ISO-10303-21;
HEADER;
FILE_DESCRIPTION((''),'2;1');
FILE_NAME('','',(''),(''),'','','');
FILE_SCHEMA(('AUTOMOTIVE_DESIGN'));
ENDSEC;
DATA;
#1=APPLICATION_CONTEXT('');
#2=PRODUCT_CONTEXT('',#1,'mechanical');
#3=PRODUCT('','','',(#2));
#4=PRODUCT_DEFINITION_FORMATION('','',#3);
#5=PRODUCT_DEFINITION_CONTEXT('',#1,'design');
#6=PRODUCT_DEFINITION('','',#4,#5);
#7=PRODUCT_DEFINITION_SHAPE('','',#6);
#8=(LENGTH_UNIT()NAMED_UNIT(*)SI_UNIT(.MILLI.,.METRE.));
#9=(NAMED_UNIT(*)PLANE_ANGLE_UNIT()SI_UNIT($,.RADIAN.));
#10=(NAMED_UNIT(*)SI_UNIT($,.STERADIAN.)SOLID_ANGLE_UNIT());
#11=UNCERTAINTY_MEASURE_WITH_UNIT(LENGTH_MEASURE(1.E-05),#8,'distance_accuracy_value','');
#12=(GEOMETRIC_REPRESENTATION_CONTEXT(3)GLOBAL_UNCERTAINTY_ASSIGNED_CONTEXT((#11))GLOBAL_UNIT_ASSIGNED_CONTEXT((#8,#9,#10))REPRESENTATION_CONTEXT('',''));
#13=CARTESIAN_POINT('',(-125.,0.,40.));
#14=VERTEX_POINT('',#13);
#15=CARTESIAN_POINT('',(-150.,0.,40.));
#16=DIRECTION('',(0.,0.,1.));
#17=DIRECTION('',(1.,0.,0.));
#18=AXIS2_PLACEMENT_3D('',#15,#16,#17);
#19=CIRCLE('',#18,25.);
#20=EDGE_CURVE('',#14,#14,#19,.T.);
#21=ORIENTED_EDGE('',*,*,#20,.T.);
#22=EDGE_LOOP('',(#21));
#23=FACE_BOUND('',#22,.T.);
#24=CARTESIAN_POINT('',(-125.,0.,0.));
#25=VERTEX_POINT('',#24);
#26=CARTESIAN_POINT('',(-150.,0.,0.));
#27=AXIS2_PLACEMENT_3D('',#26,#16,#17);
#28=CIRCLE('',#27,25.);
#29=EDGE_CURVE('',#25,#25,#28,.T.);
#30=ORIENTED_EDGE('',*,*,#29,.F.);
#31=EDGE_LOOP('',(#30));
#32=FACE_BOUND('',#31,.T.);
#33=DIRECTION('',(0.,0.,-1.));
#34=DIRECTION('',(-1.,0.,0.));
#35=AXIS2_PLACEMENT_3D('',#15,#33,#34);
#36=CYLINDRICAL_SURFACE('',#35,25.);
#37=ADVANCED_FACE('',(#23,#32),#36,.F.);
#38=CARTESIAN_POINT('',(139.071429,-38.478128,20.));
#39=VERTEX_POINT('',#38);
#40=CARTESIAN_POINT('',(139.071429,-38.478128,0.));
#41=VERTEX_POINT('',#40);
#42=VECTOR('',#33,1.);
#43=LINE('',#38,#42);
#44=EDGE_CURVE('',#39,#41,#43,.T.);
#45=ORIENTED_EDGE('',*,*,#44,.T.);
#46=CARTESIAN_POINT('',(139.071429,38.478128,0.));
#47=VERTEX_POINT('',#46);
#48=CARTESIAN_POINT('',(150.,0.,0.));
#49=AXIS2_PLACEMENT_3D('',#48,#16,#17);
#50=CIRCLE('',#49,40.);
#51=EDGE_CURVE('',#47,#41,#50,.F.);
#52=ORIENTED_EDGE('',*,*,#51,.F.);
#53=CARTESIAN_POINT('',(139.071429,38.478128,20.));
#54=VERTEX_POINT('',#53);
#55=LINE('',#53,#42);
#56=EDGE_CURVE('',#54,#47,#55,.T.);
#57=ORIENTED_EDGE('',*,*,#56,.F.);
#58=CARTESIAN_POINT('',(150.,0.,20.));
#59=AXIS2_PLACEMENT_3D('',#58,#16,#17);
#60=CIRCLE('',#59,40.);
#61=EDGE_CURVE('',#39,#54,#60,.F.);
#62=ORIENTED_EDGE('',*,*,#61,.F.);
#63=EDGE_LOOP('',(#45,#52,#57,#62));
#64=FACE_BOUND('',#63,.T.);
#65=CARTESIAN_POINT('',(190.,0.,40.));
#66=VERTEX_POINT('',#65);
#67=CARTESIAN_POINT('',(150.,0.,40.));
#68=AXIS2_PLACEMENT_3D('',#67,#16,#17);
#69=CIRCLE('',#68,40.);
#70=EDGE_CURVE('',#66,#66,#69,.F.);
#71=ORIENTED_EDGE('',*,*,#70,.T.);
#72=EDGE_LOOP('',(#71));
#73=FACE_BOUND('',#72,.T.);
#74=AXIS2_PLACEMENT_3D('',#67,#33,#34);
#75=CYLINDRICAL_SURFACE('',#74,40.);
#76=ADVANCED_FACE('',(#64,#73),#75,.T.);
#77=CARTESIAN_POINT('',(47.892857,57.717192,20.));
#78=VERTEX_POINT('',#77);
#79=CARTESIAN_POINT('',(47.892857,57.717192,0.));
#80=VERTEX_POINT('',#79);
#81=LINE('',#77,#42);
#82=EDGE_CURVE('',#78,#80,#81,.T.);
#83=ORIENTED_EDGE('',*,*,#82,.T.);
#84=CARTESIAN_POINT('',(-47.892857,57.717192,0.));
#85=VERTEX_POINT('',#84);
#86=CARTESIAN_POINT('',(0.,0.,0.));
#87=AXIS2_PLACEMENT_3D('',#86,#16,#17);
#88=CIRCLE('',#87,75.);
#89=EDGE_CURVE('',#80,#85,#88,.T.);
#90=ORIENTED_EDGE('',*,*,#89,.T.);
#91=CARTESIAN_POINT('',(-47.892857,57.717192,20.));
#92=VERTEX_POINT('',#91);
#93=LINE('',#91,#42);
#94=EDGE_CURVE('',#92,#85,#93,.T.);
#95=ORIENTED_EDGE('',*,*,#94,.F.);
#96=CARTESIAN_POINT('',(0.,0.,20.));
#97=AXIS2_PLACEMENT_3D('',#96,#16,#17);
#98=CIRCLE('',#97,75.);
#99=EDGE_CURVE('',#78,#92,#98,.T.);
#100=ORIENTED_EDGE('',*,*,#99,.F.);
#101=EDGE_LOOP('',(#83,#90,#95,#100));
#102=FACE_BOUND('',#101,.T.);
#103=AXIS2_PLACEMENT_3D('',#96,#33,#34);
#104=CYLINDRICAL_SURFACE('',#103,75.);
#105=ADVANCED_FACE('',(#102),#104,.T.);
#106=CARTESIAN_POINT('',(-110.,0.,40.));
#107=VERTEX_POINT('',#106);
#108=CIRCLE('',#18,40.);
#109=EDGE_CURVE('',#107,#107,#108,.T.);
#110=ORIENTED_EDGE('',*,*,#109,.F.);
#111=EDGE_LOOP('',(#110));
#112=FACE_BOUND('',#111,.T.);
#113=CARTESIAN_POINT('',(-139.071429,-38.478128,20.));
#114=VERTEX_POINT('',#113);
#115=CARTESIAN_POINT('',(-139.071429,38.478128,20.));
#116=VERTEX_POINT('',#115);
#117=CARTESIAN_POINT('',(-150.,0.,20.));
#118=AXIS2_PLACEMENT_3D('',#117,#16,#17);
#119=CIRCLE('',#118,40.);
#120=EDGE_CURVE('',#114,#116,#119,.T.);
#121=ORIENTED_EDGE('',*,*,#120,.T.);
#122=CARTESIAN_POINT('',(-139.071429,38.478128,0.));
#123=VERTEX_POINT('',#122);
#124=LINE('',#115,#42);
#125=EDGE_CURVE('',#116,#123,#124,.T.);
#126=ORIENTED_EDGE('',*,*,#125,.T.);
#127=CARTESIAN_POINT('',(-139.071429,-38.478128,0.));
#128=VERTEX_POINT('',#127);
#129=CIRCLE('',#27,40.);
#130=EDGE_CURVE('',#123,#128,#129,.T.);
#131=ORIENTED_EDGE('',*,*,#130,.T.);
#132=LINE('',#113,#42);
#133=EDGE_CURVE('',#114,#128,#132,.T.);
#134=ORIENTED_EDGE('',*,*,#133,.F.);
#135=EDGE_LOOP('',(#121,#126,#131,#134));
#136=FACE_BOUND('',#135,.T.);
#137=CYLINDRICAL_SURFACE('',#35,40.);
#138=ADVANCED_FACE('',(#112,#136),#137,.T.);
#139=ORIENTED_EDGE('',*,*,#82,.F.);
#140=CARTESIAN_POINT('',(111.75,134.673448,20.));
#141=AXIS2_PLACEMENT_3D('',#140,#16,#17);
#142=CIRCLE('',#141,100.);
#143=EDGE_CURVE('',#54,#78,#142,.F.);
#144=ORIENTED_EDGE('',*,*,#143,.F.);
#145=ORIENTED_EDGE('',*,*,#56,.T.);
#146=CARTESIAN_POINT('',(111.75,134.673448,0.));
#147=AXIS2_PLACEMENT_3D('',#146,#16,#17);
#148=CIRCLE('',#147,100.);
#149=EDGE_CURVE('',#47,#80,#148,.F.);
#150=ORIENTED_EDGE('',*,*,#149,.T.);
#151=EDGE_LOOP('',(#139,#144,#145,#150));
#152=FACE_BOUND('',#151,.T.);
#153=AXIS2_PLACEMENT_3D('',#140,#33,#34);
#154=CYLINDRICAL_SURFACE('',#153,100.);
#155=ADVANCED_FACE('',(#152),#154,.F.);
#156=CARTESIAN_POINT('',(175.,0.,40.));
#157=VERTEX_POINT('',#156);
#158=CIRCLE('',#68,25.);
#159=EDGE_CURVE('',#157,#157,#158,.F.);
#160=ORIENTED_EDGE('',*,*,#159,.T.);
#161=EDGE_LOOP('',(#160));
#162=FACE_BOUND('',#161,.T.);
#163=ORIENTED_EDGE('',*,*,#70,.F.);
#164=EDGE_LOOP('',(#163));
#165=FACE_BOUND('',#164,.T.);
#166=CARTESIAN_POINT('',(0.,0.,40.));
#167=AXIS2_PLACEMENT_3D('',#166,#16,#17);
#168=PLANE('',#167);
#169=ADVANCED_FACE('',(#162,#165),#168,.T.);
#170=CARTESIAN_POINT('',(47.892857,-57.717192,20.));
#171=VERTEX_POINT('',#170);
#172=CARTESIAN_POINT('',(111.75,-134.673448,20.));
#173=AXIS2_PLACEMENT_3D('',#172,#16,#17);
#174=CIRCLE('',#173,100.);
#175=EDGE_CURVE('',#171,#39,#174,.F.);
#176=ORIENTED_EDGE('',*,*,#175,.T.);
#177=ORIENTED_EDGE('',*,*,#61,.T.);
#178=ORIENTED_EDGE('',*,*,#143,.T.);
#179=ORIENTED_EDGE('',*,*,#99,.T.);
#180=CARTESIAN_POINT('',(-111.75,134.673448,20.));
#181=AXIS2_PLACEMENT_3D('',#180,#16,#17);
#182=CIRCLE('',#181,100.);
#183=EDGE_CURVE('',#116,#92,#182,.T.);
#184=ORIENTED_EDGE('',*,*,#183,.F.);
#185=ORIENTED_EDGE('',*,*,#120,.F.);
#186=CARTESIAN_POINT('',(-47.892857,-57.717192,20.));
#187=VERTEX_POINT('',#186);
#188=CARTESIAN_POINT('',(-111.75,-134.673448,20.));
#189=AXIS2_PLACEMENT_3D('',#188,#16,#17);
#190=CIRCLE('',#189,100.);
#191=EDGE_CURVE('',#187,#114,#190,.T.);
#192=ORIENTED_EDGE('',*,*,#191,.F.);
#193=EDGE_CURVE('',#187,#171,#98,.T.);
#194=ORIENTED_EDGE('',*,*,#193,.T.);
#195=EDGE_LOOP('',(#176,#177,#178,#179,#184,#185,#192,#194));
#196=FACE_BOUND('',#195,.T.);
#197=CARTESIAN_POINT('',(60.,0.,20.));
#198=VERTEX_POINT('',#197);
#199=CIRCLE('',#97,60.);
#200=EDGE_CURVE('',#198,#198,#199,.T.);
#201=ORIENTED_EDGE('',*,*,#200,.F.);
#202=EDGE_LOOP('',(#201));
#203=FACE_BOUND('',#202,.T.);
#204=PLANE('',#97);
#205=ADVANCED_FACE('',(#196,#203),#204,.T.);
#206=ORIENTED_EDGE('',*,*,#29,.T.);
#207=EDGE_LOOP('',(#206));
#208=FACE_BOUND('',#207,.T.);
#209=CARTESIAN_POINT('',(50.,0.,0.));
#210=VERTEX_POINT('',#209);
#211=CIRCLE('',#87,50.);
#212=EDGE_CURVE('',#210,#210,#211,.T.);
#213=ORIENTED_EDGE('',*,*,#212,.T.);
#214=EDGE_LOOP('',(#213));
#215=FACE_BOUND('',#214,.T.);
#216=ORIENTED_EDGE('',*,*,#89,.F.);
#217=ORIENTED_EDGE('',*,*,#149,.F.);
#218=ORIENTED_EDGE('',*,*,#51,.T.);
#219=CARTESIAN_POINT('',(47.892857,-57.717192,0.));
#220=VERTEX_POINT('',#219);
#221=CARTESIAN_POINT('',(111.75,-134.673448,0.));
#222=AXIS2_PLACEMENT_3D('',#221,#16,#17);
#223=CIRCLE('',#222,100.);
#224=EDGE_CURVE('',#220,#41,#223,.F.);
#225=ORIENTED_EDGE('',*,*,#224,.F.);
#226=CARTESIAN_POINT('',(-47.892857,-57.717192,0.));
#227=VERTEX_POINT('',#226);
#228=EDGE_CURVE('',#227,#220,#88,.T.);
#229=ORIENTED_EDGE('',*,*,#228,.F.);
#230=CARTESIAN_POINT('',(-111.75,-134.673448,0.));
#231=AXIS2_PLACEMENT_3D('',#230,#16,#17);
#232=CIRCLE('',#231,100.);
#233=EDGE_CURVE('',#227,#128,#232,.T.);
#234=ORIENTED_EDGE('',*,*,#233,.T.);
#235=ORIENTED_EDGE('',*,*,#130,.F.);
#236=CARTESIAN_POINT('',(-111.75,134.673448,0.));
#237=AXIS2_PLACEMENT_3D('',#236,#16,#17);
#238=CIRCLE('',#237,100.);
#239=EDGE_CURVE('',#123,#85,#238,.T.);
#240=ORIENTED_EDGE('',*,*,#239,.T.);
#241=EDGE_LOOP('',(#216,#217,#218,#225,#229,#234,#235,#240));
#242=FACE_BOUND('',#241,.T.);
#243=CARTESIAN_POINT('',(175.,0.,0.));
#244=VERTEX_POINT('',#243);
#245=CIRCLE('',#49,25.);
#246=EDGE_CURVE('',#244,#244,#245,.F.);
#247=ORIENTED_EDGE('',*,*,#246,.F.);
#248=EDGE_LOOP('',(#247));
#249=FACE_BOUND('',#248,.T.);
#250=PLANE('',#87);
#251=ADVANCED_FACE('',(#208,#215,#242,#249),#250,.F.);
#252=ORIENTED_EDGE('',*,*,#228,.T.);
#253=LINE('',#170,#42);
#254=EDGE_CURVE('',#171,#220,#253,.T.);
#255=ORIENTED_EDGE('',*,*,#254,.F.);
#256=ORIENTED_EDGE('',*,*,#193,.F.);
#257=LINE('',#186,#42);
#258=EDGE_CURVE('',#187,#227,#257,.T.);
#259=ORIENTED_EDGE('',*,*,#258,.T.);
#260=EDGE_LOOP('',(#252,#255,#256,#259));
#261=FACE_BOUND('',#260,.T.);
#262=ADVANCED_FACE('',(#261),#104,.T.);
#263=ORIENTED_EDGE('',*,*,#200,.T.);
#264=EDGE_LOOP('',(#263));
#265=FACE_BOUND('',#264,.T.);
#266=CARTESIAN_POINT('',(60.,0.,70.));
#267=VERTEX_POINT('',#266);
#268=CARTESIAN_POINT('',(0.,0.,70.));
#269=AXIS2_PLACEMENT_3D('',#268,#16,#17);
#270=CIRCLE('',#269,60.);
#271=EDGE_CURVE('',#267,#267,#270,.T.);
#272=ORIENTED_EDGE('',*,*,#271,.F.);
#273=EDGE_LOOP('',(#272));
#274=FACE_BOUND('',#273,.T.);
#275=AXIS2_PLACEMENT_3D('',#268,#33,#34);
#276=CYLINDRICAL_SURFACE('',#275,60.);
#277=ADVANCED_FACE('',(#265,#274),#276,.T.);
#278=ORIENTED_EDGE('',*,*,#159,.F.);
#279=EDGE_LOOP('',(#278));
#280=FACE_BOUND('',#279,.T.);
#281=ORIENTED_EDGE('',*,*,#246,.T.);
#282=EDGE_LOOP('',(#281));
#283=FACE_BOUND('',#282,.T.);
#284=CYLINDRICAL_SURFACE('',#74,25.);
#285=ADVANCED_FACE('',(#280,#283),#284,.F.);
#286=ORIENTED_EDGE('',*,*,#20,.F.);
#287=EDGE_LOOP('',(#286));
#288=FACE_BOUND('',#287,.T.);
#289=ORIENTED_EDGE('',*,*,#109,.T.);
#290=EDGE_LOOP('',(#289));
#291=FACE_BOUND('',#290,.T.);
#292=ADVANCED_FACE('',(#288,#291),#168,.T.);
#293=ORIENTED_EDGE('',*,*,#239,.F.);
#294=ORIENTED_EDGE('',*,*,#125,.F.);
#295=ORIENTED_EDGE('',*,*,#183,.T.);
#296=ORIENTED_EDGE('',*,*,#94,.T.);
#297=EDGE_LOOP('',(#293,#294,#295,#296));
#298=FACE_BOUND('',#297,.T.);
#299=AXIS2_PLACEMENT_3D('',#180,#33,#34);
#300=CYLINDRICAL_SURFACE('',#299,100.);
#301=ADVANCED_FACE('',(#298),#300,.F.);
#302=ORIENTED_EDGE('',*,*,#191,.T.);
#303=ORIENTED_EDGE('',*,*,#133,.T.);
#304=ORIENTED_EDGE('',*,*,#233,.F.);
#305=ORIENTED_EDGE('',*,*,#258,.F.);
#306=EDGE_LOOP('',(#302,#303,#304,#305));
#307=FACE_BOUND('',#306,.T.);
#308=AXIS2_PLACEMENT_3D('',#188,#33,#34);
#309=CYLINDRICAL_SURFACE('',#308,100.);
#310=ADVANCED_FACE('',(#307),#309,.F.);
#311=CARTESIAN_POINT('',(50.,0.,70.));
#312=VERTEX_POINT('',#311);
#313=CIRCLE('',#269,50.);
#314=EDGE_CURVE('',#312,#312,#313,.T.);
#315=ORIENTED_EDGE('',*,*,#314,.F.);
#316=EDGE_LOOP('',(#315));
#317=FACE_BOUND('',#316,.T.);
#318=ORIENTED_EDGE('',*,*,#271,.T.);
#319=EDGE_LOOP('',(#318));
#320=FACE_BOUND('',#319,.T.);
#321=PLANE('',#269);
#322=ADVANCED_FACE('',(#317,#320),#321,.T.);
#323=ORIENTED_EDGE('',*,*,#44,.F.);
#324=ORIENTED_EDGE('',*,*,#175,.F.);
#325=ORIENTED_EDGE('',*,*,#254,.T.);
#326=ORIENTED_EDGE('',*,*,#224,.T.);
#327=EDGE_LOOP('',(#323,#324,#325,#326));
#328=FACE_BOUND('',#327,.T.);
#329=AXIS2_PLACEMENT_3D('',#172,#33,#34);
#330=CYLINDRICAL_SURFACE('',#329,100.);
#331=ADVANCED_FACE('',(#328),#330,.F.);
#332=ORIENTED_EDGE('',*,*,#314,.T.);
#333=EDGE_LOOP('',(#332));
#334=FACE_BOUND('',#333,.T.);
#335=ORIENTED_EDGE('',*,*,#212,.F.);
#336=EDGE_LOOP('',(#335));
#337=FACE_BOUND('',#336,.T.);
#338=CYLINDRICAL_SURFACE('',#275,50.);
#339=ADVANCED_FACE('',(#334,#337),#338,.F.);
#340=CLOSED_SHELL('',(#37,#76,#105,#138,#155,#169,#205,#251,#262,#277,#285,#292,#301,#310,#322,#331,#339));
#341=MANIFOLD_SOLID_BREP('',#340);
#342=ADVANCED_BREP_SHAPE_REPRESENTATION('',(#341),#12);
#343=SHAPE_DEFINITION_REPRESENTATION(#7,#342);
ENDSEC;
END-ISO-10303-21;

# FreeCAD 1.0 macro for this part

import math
import FreeCAD as App
import Part
import Sketcher
Q = App.Units.Quantity

doc = App.newDocument("Part")
body = doc.addObject("PartDesign::Body", "Body")

# Sketch on XY plane
sketch1 = body.newObject("Sketcher::SketchObject", "Sketch")
sketch1.AttachmentSupport = (doc.getObject("XY_Plane"), [""])
sketch1.MapMode = "FlatFace"
sketch1.addGeometry([
    Part.ArcOfCircle(Part.Circle(App.Vector(-112, -135, 0), App.Vector(0, 0, 1), 100), math.radians(50), math.radians(106)),  # 0
    Part.ArcOfCircle(Part.Circle(App.Vector(0, 0, 0), App.Vector(0, 0, 1), 75), math.radians(-130), math.radians(-50)),  # 1
    Part.ArcOfCircle(Part.Circle(App.Vector(112, -135, 0), App.Vector(0, 0, 1), 100), math.radians(74), math.radians(130)),  # 2
    Part.ArcOfCircle(Part.Circle(App.Vector(150, 0, 0), App.Vector(0, 0, 1), 40), math.radians(106), math.radians(254)),  # 3
    Part.ArcOfCircle(Part.Circle(App.Vector(112, 135, 0), App.Vector(0, 0, 1), 100), math.radians(-130), math.radians(-74)),  # 4
    Part.ArcOfCircle(Part.Circle(App.Vector(0, 0, 0), App.Vector(0, 0, 1), 75), math.radians(50), math.radians(130)),  # 5
    Part.ArcOfCircle(Part.Circle(App.Vector(-112, 135, 0), App.Vector(0, 0, 1), 100), math.radians(-106), math.radians(-50)),  # 6
    Part.ArcOfCircle(Part.Circle(App.Vector(-150, 0, 0), App.Vector(0, 0, 1), 40), math.radians(0), math.radians(74)),  # 7
    Part.ArcOfCircle(Part.Circle(App.Vector(-150, 0, 0), App.Vector(0, 0, 1), 40), math.radians(-74), math.radians(0)),  # 8
    Part.Circle(App.Vector(0, 0, 0), App.Vector(0, 0, 1), 60),  # 9
], False)
sketch1.addConstraint([
    Sketcher.Constraint("Tangent", 0, 1, 1, 1),
    Sketcher.Constraint("Tangent", 1, 2, 2, 2),
    Sketcher.Constraint("Tangent", 2, 1, 3, 2),
    Sketcher.Constraint("Tangent", 3, 1, 4, 2),
    Sketcher.Constraint("Tangent", 4, 1, 5, 1),
    Sketcher.Constraint("Tangent", 5, 2, 6, 2),
    Sketcher.Constraint("Tangent", 6, 1, 7, 2),
    Sketcher.Constraint("Tangent", 7, 1, 8, 2),
    Sketcher.Constraint("Tangent", 8, 1, 0, 2),
    Sketcher.Constraint("Coincident", 1, 3, -1, 1),
    Sketcher.Constraint("Coincident", 5, 3, -1, 1),
    Sketcher.Constraint("Coincident", 9, 3, -1, 1),
    Sketcher.Constraint("Equal", 0, 2),
    Sketcher.Constraint("Equal", 2, 4),
    Sketcher.Constraint("Equal", 1, 5),
    Sketcher.Constraint("Equal", 4, 6),
    Sketcher.Constraint("Equal", 3, 7),
    Sketcher.Constraint("Equal", 7, 8),
    Sketcher.Constraint("Symmetric", 3, 3, 7, 3, -1, 1),
    Sketcher.Constraint("PointOnObject", 3, 3, -1),
    Sketcher.Constraint("PointOnObject", 7, 1, -1),
    Sketcher.Constraint("Diameter", 9, Q("120 mm")),
    Sketcher.Constraint("Radius", 0, Q("100 mm")),
    Sketcher.Constraint("Radius", 1, Q("75 mm")),
    Sketcher.Constraint("Radius", 3, Q("40 mm")),
    Sketcher.Constraint("DistanceX", -1, 1, 3, 3, Q("150 mm")),
])
pad1 = body.newObject("PartDesign::Pad", "Pad")
pad1.Profile = sketch1
pad1.Length = 20

# Sketch on XY plane
sketch2 = body.newObject("Sketcher::SketchObject", "Sketch001")
sketch2.AttachmentSupport = (doc.getObject("XY_Plane"), [""])
sketch2.MapMode = "FlatFace"
sketch2.addGeometry([
    Part.Circle(App.Vector(-150, 0, 0), App.Vector(0, 0, 1), 40),
    Part.Circle(App.Vector(-150, 0, 0), App.Vector(0, 0, 1), 25),
    Part.Circle(App.Vector(150, 0, 0), App.Vector(0, 0, 1), 40),
    Part.Circle(App.Vector(150, 0, 0), App.Vector(0, 0, 1), 25),
], False)
sketch2.addConstraint([
    Sketcher.Constraint("Coincident", 1, 3, 0, 3),
    Sketcher.Constraint("Coincident", 3, 3, 2, 3),
    Sketcher.Constraint("Equal", 0, 2),
    Sketcher.Constraint("Equal", 1, 3),
    Sketcher.Constraint("Symmetric", 0, 3, 2, 3, -1, 1),
    Sketcher.Constraint("PointOnObject", 0, 3, -1),
    Sketcher.Constraint("Diameter", 0, Q("80 mm")),
    Sketcher.Constraint("Diameter", 1, Q("50 mm")),
    Sketcher.Constraint("DistanceX", 0, 3, -1, 1, Q("150 mm")),
])
pad2 = body.newObject("PartDesign::Pad", "Pad001")
pad2.Profile = sketch2
pad2.Length = 40

# Sketch on XY plane
sketch3 = body.newObject("Sketcher::SketchObject", "Sketch002")
sketch3.AttachmentSupport = (doc.getObject("XY_Plane"), [""])
sketch3.MapMode = "FlatFace"
sketch3.addGeometry([
    Part.Circle(App.Vector(0, 0, 0), App.Vector(0, 0, 1), 60),
    Part.Circle(App.Vector(0, 0, 0), App.Vector(0, 0, 1), 50),
], False)
sketch3.addConstraint([
    Sketcher.Constraint("Coincident", 0, 3, -1, 1),
    Sketcher.Constraint("Coincident", 1, 3, -1, 1),
    Sketcher.Constraint("Diameter", 0, Q("120 mm")),
    Sketcher.Constraint("Diameter", 1, Q("100 mm")),
])
pad3 = body.newObject("PartDesign::Pad", "Pad002")
pad3.Profile = sketch3
pad3.Length = 70

doc.recompute()
